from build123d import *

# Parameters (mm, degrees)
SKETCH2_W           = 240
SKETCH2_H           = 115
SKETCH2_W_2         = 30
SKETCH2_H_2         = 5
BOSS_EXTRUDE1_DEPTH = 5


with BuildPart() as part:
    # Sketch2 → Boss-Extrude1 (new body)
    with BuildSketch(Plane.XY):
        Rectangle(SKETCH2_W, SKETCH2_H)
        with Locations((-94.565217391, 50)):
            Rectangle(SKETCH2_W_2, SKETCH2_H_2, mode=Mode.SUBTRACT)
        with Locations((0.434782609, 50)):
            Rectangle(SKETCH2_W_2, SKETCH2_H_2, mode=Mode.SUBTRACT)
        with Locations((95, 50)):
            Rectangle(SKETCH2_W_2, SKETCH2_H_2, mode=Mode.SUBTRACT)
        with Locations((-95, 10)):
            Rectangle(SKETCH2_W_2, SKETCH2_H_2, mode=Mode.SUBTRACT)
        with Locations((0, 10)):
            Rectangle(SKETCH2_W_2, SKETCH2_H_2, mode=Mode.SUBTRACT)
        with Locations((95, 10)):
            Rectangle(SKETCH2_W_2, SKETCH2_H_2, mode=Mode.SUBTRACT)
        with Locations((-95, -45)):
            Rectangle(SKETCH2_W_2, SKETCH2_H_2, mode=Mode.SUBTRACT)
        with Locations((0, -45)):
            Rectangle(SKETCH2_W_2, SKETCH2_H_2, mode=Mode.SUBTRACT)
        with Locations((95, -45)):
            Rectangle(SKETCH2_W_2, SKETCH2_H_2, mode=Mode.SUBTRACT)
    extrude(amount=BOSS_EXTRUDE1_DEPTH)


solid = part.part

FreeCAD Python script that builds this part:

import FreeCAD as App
import Part
import Sketcher
from FreeCAD import Vector


def add_polygon(sketch, points):
    """Adds a closed chain of lines whose ends are joined by coincident constraints."""
    first, n = sketch.GeometryCount, len(points)
    for a, b in zip(points, points[1:] + points[:1]):
        sketch.addGeometry(Part.LineSegment(App.Vector(*a, 0), App.Vector(*b, 0)), False)
    for i in range(n):
        sketch.addConstraint(Sketcher.Constraint("Coincident", first + i, 2, first + (i + 1) % n, 1))

doc = App.newDocument("Part")
body = doc.addObject("PartDesign::Body", "Body")

# Sketch on XY plane
sketch1 = body.newObject("Sketcher::SketchObject", "Sketch")
sketch1.AttachmentSupport = (doc.getObject("XY_Plane"), [""])
sketch1.MapMode = "FlatFace"
add_polygon(sketch1, [(-120, 58), (-120, -58), (120, -58), (120, 58)])  # lines 0-3
add_polygon(sketch1, [(-80, -48), (-110, -48), (-110, -42), (-80, -42)])  # lines 4-7
add_polygon(sketch1, [(15, -48), (-15, -48), (-15, -42), (15, -42)])  # lines 8-11
add_polygon(sketch1, [(110, -48), (80, -48), (80, -42), (110, -42)])  # lines 12-15
add_polygon(sketch1, [(-80, 8), (-110, 8), (-110, 12), (-80, 12)])  # lines 16-19
add_polygon(sketch1, [(-80, 48), (-110, 48), (-110, 52), (-80, 52)])  # lines 20-23
add_polygon(sketch1, [(15, 8), (-15, 8), (-15, 12), (15, 12)])  # lines 24-27
add_polygon(sketch1, [(110, 8), (80, 8), (80, 12), (110, 12)])  # lines 28-31
add_polygon(sketch1, [(15, 48), (-15, 48), (-15, 52), (15, 52)])  # lines 32-35
add_polygon(sketch1, [(110, 48), (80, 48), (80, 52), (110, 52)])  # lines 36-39
sketch1.addConstraint([
    Sketcher.Constraint("Vertical", 0),
    Sketcher.Constraint("Horizontal", 1),
    Sketcher.Constraint("Vertical", 2),
    Sketcher.Constraint("Horizontal", 3),
    Sketcher.Constraint("Horizontal", 4),
    Sketcher.Constraint("Vertical", 5),
    Sketcher.Constraint("Horizontal", 6),
    Sketcher.Constraint("Vertical", 7),
    Sketcher.Constraint("Horizontal", 8),
    Sketcher.Constraint("Vertical", 9),
    Sketcher.Constraint("Horizontal", 10),
    Sketcher.Constraint("Vertical", 11),
    Sketcher.Constraint("Horizontal", 12),
    Sketcher.Constraint("Vertical", 13),
    Sketcher.Constraint("Horizontal", 14),
    Sketcher.Constraint("Vertical", 15),
    Sketcher.Constraint("Horizontal", 16),
    Sketcher.Constraint("Vertical", 17),
    Sketcher.Constraint("Horizontal", 18),
    Sketcher.Constraint("Vertical", 19),
    Sketcher.Constraint("Horizontal", 20),
    Sketcher.Constraint("Vertical", 21),
    Sketcher.Constraint("Horizontal", 22),
    Sketcher.Constraint("Vertical", 23),
    Sketcher.Constraint("Horizontal", 24),
    Sketcher.Constraint("Vertical", 25),
    Sketcher.Constraint("Horizontal", 26),
    Sketcher.Constraint("Vertical", 27),
    Sketcher.Constraint("Horizontal", 28),
    Sketcher.Constraint("Vertical", 29),
    Sketcher.Constraint("Horizontal", 30),
    Sketcher.Constraint("Vertical", 31),
    Sketcher.Constraint("Horizontal", 32),
    Sketcher.Constraint("Vertical", 33),
    Sketcher.Constraint("Horizontal", 34),
    Sketcher.Constraint("Vertical", 35),
    Sketcher.Constraint("Horizontal", 36),
    Sketcher.Constraint("Vertical", 37),
    Sketcher.Constraint("Horizontal", 38),
    Sketcher.Constraint("Vertical", 39),
    Sketcher.Constraint("Symmetric", 0, 2, 2, 2, -1, 1),
    Sketcher.Constraint("Symmetric", 7, 2, 36, 2, -1, 1),
    Sketcher.Constraint("Symmetric", 7, 2, 12, 2, -2),
    Sketcher.Constraint("Symmetric", 5, 2, 14, 2, -2),
    Sketcher.Constraint("Symmetric", 19, 2, 28, 2, -2),
    Sketcher.Constraint("Symmetric", 17, 2, 30, 2, -2),
    Sketcher.Constraint("Horizontal", 7, 2, 8, 2),
    Sketcher.Constraint("Horizontal", 6, 2, 9, 2),
    Sketcher.Constraint("Horizontal", 19, 2, 24, 2),
    Sketcher.Constraint("Horizontal", 18, 2, 25, 2),
    Sketcher.Constraint("Horizontal", 23, 2, 32, 2),
    Sketcher.Constraint("Horizontal", 22, 2, 33, 2),
    Sketcher.Constraint("Horizontal", 35, 2, 36, 2),
    Sketcher.Constraint("Horizontal", 34, 2, 37, 2),
    Sketcher.Constraint("Vertical", 5, 2, 16, 2),
    Sketcher.Constraint("Vertical", 7, 2, 18, 2),
    Sketcher.Constraint("Vertical", 9, 2, 24, 2),
    Sketcher.Constraint("Vertical", 11, 2, 26, 2),
    Sketcher.Constraint("Vertical", 31, 2, 38, 2),
    Sketcher.Constraint("Equal", 6, 8),
    Sketcher.Constraint("Equal", 18, 20),
    Sketcher.Constraint("Equal", 30, 32),
    Sketcher.Constraint("Equal", 15, 17),
    Sketcher.Constraint("Equal", 19, 21),
    Sketcher.Constraint("DistanceX", 1, 1, 1, 2, 240.0),
    Sketcher.Constraint("DistanceX", 4, 2, 4, 1, 30.0),
    Sketcher.Constraint("DistanceY", 0, 2, 0, 1, 115.0),
    Sketcher.Constraint("DistanceY", 5, 1, 5, 2, 5.0),
    Sketcher.Constraint("DistanceX", 4, 2, -1, 1, 110.0),
    Sketcher.Constraint("DistanceX", 8, 2, -1, 1, 15.0),
    Sketcher.Constraint("DistanceY", 0, 2, 4, 2, 10.0),
    Sketcher.Constraint("DistanceY", 5, 2, 16, 2, 50.0),
    Sketcher.Constraint("DistanceX", 23, 2, 32, 2, 65.0),
    Sketcher.Constraint("DistanceX", 20, 2, -1, 1, 109.565217),
])
pad1 = body.newObject("PartDesign::Pad", "Pad")
pad1.Profile = sketch1
pad1.Length = 5

doc.recompute()
